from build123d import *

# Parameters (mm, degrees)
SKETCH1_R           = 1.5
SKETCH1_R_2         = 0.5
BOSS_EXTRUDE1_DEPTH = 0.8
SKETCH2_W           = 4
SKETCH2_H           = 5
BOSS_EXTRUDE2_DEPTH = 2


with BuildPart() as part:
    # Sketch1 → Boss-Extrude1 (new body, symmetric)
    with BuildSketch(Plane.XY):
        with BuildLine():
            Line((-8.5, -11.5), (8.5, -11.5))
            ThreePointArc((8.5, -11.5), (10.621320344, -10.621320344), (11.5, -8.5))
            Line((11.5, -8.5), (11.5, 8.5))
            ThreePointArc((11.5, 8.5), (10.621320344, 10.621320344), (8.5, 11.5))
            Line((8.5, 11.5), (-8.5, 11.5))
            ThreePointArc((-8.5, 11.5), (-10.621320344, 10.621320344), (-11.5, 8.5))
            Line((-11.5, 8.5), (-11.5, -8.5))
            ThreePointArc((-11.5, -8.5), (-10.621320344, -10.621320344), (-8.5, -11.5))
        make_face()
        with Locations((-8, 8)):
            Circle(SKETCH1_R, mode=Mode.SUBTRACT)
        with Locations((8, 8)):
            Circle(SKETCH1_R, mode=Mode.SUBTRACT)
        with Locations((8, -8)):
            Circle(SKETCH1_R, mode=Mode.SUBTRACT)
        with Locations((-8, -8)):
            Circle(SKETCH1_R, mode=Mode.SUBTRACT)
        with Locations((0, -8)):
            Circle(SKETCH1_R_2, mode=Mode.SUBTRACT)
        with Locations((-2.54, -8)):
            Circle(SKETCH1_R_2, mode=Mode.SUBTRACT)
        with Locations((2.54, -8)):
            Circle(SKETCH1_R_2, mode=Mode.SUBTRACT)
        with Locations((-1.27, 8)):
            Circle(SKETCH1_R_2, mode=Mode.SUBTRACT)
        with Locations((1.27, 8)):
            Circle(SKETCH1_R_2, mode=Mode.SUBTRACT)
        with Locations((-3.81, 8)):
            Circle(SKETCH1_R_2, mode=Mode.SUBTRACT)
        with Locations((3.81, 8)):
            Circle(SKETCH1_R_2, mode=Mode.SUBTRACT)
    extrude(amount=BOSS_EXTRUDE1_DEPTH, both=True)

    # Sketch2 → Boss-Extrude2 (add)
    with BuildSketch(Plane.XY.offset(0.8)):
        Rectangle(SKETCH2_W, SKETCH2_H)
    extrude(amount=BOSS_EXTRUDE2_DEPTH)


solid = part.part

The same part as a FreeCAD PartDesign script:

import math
import FreeCAD as App
import Part
import Sketcher
from FreeCAD import Vector


def add_polygon(sketch, points):
    """Adds a closed chain of lines whose ends are joined by coincident constraints."""
    first, n = sketch.GeometryCount, len(points)
    for a, b in zip(points, points[1:] + points[:1]):
        sketch.addGeometry(Part.LineSegment(App.Vector(*a, 0), App.Vector(*b, 0)), False)
    for i in range(n):
        sketch.addConstraint(Sketcher.Constraint("Coincident", first + i, 2, first + (i + 1) % n, 1))

doc = App.newDocument("Part")
body = doc.addObject("PartDesign::Body", "Body")

sketch1 = doc.addObject("Sketcher::SketchObject", "Sketch")
body.addObject(sketch1)
sketch1.AttachmentSupport = (doc.XY_Plane, [""])
sketch1.MapMode = "FlatFace"
sketch1.addGeometry([
    Part.LineSegment(Vector(-8.5, -11.5, 0), Vector(8.5, -11.5, 0)),
    Part.ArcOfCircle(Part.Circle(Vector(8.5, -8.5, 0), Vector(0, 0, 1), 3), math.radians(-90), math.radians(0)),
    Part.LineSegment(Vector(11.5, -8.5, 0), Vector(11.5, 8.5, 0)),
    Part.ArcOfCircle(Part.Circle(Vector(8.5, 8.5, 0), Vector(0, 0, 1), 3), math.radians(0), math.radians(90)),
    Part.LineSegment(Vector(8.5, 11.5, 0), Vector(-8.5, 11.5, 0)),
    Part.ArcOfCircle(Part.Circle(Vector(-8.5, 8.5, 0), Vector(0, 0, 1), 3), math.radians(90), math.radians(180)),
    Part.LineSegment(Vector(-11.5, 8.5, 0), Vector(-11.5, -8.5, 0)),
    Part.ArcOfCircle(Part.Circle(Vector(-8.5, -8.5, 0), Vector(0, 0, 1), 3), math.radians(180), math.radians(270)),
    Part.Circle(Vector(-8, -8, 0), Vector(0, 0, 1), 1.5),
    Part.Circle(Vector(-2.54, -8, 0), Vector(0, 0, 1), 0.5),
    Part.Circle(Vector(0, -8, 0), Vector(0, 0, 1), 0.5),
    Part.Circle(Vector(2.54, -8, 0), Vector(0, 0, 1), 0.5),
    Part.Circle(Vector(8, -8, 0), Vector(0, 0, 1), 1.5),
    Part.Circle(Vector(-8, 8, 0), Vector(0, 0, 1), 1.5),
    Part.Circle(Vector(-3.81, 8, 0), Vector(0, 0, 1), 0.5),
    Part.Circle(Vector(-1.27, 8, 0), Vector(0, 0, 1), 0.5),
    Part.Circle(Vector(1.27, 8, 0), Vector(0, 0, 1), 0.5),
    Part.Circle(Vector(3.81, 8, 0), Vector(0, 0, 1), 0.5),
    Part.Circle(Vector(8, 8, 0), Vector(0, 0, 1), 1.5),
], False)
sketch1.addConstraint([
    Sketcher.Constraint("Tangent", 0, 2, 1, 1),
    Sketcher.Constraint("Tangent", 1, 2, 2, 1),
    Sketcher.Constraint("Tangent", 2, 2, 3, 1),
    Sketcher.Constraint("Tangent", 3, 2, 4, 1),
    Sketcher.Constraint("Tangent", 4, 2, 5, 1),
    Sketcher.Constraint("Tangent", 5, 2, 6, 1),
    Sketcher.Constraint("Tangent", 6, 2, 7, 1),
    Sketcher.Constraint("Tangent", 7, 2, 0, 1),
    Sketcher.Constraint("Horizontal", 0),
    Sketcher.Constraint("Vertical", 2),
    Sketcher.Constraint("Horizontal", 4),
    Sketcher.Constraint("Vertical", 6),
    Sketcher.Constraint("Equal", 1, 3),
    Sketcher.Constraint("Equal", 3, 5),
    Sketcher.Constraint("Equal", 5, 7),
    Sketcher.Constraint("Equal", 9, 10),
    Sketcher.Constraint("Equal", 10, 11),
    Sketcher.Constraint("Equal", 8, 12),
    Sketcher.Constraint("Equal", 12, 13),
    Sketcher.Constraint("Equal", 11, 14),
    Sketcher.Constraint("Equal", 14, 15),
    Sketcher.Constraint("Equal", 15, 16),
    Sketcher.Constraint("Equal", 16, 17),
    Sketcher.Constraint("Equal", 13, 18),
    Sketcher.Constraint("Symmetric", 1, 3, 5, 3, -1, 1),
    Sketcher.Constraint("Symmetric", 12, 3, 13, 3, -1, 1),
    Sketcher.Constraint("Symmetric", 8, 3, 18, 3, -1, 1),
    Sketcher.Constraint("Symmetric", 9, 3, 11, 3, -2),
    Sketcher.Constraint("Symmetric", 8, 3, 12, 3, -2),
    Sketcher.Constraint("Symmetric", 15, 3, 16, 3, -2),
    Sketcher.Constraint("Symmetric", 14, 3, 17, 3, -2),
    Sketcher.Constraint("PointOnObject", 10, 3, -2),
    Sketcher.Constraint("Horizontal", 8, 3, 9, 3),
    Sketcher.Constraint("Horizontal", 9, 3, 10, 3),
    Sketcher.Constraint("Horizontal", 13, 3, 14, 3),
    Sketcher.Constraint("Horizontal", 14, 3, 15, 3),
    Sketcher.Constraint("Equal", 4, 2),
    Sketcher.Constraint("Diameter", 8, 3.0),
    Sketcher.Constraint("Diameter", 9, 1.0),
    Sketcher.Constraint("Radius", 1, 3.0),
    Sketcher.Constraint("DistanceX", 0, 1, 0, 2, 17.0),
    Sketcher.Constraint("DistanceX", 8, 3, -1, 1, 8.0),
    Sketcher.Constraint("DistanceY", 8, 3, -1, 1, 8.0),
    Sketcher.Constraint("DistanceX", 9, 3, -1, 1, 2.54),
    Sketcher.Constraint("DistanceX", 14, 3, -1, 1, 3.81),
    Sketcher.Constraint("DistanceX", 15, 3, -1, 1, 1.27),
])
pad1 = doc.addObject("PartDesign::Pad", "Pad")
body.addObject(pad1)
pad1.Profile = sketch1
pad1.Length = 1.6
pad1.Midplane = True

sketch2 = doc.addObject("Sketcher::SketchObject", "Sketch001")
body.addObject(sketch2)
sketch2.AttachmentSupport = (doc.XY_Plane, [""])
sketch2.MapMode = "FlatFace"
sketch2.AttachmentOffset = App.Placement(Vector(0, 0, 0.8), App.Rotation())
add_polygon(sketch2, [(-2, 2.5), (-2, -2.5), (2, -2.5), (2, 2.5)])
sketch2.addConstraint([
    Sketcher.Constraint("Vertical", 0),
    Sketcher.Constraint("Horizontal", 1),
    Sketcher.Constraint("Vertical", 2),
    Sketcher.Constraint("Horizontal", 3),
    Sketcher.Constraint("Symmetric", 0, 2, 2, 2, -1, 1),
    Sketcher.Constraint("DistanceX", 1, 1, 1, 2, 4.0),
    Sketcher.Constraint("DistanceY", 0, 2, 0, 1, 5.0),
])
pad2 = doc.addObject("PartDesign::Pad", "Pad001")
body.addObject(pad2)
pad2.Profile = sketch2
pad2.Length = 2

doc.recompute()
